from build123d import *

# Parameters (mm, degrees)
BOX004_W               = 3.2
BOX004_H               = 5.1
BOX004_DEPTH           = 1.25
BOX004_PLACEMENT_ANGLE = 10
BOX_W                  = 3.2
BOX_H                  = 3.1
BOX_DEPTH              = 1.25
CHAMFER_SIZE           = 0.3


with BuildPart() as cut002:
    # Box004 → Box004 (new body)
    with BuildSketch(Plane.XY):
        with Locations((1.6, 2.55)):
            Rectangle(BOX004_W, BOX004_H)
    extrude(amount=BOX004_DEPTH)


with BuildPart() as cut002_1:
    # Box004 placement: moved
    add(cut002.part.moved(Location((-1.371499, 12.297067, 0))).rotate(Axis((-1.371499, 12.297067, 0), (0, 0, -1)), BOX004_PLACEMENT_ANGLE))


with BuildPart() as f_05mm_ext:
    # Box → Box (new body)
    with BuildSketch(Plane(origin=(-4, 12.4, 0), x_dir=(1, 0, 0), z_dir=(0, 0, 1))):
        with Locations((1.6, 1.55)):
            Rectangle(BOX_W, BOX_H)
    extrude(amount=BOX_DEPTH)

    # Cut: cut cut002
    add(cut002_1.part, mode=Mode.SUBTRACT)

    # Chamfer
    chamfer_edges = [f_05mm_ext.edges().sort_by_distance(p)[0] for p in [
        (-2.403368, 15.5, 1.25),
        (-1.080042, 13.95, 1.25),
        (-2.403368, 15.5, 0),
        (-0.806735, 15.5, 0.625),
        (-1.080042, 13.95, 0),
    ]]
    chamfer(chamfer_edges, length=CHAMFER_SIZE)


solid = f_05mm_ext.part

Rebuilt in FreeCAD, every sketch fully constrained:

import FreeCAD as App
import Part
import Sketcher


def edges_at(feature, points):
    """Names of the edges that pass closest to the given points."""
    edges = feature.Shape.Edges
    near = lambda p: min(range(len(edges)), key=lambda i: edges[i].distToShape(Part.Vertex(*p))[0])
    return sorted({f"Edge{near(p) + 1}" for p in points})

doc = App.newDocument("Part")
params = doc.addObject("Spreadsheet::Sheet", "Params")
for row, (alias, value) in enumerate([
    ("sketch1_width", "3.2 mm"),
    ("sketch1_height", "5.1 mm"),
    ("pad1_length", "1.25 mm"),
    ("sketch2_width", "3.2 mm"),
    ("sketch2_height", "3.1 mm"),
    ("pad2_length", "1.25 mm"),
    ("chamfer_size", "0.3 mm"),
], start=1):
    params.set(f"A{row}", alias)
    params.set(f"B{row}", "=" + value)
    params.setAlias(f"B{row}", alias)

body = doc.addObject("PartDesign::Body", "Body")

# Sketch on XY plane
sketch1 = doc.addObject("Sketcher::SketchObject", "Sketch")
body.addObject(sketch1)
sketch1.AttachmentSupport = (doc.XY_Plane, [""])
sketch1.MapMode = "FlatFace"
sketch1.addGeometry([
    Part.LineSegment(App.Vector(0, 5.1, 0), App.Vector(0, 0, 0)),
    Part.LineSegment(App.Vector(0, 0, 0), App.Vector(3.2, 0, 0)),
    Part.LineSegment(App.Vector(3.2, 0, 0), App.Vector(3.2, 5.1, 0)),
    Part.LineSegment(App.Vector(3.2, 5.1, 0), App.Vector(0, 5.1, 0)),
], False)
sketch1.addConstraint([
    Sketcher.Constraint("Coincident", 0, 2, 1, 1),
    Sketcher.Constraint("Coincident", 1, 2, 2, 1),
    Sketcher.Constraint("Coincident", 2, 2, 3, 1),
    Sketcher.Constraint("Coincident", 3, 2, 0, 1),
    Sketcher.Constraint("Vertical", 0),
    Sketcher.Constraint("Horizontal", 1),
    Sketcher.Constraint("Vertical", 2),
    Sketcher.Constraint("Horizontal", 3),
    Sketcher.Constraint("Coincident", 0, 2, -1, 1),
    Sketcher.Constraint("DistanceX", 1, 1, 1, 2, 3.2),
    Sketcher.Constraint("DistanceY", 0, 2, 0, 1, 5.1),
])
sketch1.setExpression("Constraints[9]", "Params.sketch1_width")
sketch1.setExpression("Constraints[10]", "Params.sketch1_height")
pad1 = doc.addObject("PartDesign::Pad", "Pad")
body.addObject(pad1)
pad1.Profile = sketch1
pad1.setExpression("Length", "Params.pad1_length")
body2 = doc.addObject("PartDesign::Body", "Body001")
doc.recompute()

body.Placement = App.Placement(App.Vector(-1.371499, 12.297067, 0), App.Rotation(App.Vector(0, 0, -1), 10))
boolean = doc.addObject("PartDesign::Boolean", "Boolean")
body2.addObject(boolean)
boolean.Type = "Fuse"
boolean.addObjects([body])
body3 = doc.addObject("PartDesign::Body", "Body002")

# Sketch on XY plane
sketch2 = doc.addObject("Sketcher::SketchObject", "Sketch001")
body3.addObject(sketch2)
sketch2.AttachmentSupport = (doc.getObject("XY_Plane002"), [""])
sketch2.MapMode = "FlatFace"
sketch2.addGeometry([
    Part.LineSegment(App.Vector(-4, 15.5, 0), App.Vector(-4, 12.4, 0)),
    Part.LineSegment(App.Vector(-4, 12.4, 0), App.Vector(-0.8, 12.4, 0)),
    Part.LineSegment(App.Vector(-0.8, 12.4, 0), App.Vector(-0.8, 15.5, 0)),
    Part.LineSegment(App.Vector(-0.8, 15.5, 0), App.Vector(-4, 15.5, 0)),
], False)
sketch2.addConstraint([
    Sketcher.Constraint("Coincident", 0, 2, 1, 1),
    Sketcher.Constraint("Coincident", 1, 2, 2, 1),
    Sketcher.Constraint("Coincident", 2, 2, 3, 1),
    Sketcher.Constraint("Coincident", 3, 2, 0, 1),
    Sketcher.Constraint("Vertical", 0),
    Sketcher.Constraint("Horizontal", 1),
    Sketcher.Constraint("Vertical", 2),
    Sketcher.Constraint("Horizontal", 3),
    Sketcher.Constraint("DistanceX", 1, 1, 1, 2, 3.2),
    Sketcher.Constraint("DistanceY", 0, 2, 0, 1, 3.1),
    Sketcher.Constraint("DistanceX", 0, 2, -1, 1, 4.0),
    Sketcher.Constraint("DistanceY", -1, 1, 0, 2, 12.4),
])
sketch2.setExpression("Constraints[8]", "Params.sketch2_width")
sketch2.setExpression("Constraints[9]", "Params.sketch2_height")
pad2 = doc.addObject("PartDesign::Pad", "Pad001")
body3.addObject(pad2)
pad2.Profile = sketch2
pad2.setExpression("Length", "Params.pad2_length")
doc.recompute()

boolean2 = doc.addObject("PartDesign::Boolean", "Boolean001")
body3.addObject(boolean2)
boolean2.Type = "Cut"
boolean2.addObjects([body2])
doc.recompute()

chamfer = doc.addObject("PartDesign::Chamfer", "Chamfer")
body3.addObject(chamfer)
chamfer.Base = (boolean2, edges_at(boolean2, [
    (-2.403, 15.5, 1.25),
    (-1.08, 13.95, 1.25),
    (-2.403, 15.5, 0),
    (-0.807, 15.5, 0.625),
    (-1.08, 13.95, 0),
]))
chamfer.setExpression("Size", "Params.chamfer_size")

doc.recompute()
